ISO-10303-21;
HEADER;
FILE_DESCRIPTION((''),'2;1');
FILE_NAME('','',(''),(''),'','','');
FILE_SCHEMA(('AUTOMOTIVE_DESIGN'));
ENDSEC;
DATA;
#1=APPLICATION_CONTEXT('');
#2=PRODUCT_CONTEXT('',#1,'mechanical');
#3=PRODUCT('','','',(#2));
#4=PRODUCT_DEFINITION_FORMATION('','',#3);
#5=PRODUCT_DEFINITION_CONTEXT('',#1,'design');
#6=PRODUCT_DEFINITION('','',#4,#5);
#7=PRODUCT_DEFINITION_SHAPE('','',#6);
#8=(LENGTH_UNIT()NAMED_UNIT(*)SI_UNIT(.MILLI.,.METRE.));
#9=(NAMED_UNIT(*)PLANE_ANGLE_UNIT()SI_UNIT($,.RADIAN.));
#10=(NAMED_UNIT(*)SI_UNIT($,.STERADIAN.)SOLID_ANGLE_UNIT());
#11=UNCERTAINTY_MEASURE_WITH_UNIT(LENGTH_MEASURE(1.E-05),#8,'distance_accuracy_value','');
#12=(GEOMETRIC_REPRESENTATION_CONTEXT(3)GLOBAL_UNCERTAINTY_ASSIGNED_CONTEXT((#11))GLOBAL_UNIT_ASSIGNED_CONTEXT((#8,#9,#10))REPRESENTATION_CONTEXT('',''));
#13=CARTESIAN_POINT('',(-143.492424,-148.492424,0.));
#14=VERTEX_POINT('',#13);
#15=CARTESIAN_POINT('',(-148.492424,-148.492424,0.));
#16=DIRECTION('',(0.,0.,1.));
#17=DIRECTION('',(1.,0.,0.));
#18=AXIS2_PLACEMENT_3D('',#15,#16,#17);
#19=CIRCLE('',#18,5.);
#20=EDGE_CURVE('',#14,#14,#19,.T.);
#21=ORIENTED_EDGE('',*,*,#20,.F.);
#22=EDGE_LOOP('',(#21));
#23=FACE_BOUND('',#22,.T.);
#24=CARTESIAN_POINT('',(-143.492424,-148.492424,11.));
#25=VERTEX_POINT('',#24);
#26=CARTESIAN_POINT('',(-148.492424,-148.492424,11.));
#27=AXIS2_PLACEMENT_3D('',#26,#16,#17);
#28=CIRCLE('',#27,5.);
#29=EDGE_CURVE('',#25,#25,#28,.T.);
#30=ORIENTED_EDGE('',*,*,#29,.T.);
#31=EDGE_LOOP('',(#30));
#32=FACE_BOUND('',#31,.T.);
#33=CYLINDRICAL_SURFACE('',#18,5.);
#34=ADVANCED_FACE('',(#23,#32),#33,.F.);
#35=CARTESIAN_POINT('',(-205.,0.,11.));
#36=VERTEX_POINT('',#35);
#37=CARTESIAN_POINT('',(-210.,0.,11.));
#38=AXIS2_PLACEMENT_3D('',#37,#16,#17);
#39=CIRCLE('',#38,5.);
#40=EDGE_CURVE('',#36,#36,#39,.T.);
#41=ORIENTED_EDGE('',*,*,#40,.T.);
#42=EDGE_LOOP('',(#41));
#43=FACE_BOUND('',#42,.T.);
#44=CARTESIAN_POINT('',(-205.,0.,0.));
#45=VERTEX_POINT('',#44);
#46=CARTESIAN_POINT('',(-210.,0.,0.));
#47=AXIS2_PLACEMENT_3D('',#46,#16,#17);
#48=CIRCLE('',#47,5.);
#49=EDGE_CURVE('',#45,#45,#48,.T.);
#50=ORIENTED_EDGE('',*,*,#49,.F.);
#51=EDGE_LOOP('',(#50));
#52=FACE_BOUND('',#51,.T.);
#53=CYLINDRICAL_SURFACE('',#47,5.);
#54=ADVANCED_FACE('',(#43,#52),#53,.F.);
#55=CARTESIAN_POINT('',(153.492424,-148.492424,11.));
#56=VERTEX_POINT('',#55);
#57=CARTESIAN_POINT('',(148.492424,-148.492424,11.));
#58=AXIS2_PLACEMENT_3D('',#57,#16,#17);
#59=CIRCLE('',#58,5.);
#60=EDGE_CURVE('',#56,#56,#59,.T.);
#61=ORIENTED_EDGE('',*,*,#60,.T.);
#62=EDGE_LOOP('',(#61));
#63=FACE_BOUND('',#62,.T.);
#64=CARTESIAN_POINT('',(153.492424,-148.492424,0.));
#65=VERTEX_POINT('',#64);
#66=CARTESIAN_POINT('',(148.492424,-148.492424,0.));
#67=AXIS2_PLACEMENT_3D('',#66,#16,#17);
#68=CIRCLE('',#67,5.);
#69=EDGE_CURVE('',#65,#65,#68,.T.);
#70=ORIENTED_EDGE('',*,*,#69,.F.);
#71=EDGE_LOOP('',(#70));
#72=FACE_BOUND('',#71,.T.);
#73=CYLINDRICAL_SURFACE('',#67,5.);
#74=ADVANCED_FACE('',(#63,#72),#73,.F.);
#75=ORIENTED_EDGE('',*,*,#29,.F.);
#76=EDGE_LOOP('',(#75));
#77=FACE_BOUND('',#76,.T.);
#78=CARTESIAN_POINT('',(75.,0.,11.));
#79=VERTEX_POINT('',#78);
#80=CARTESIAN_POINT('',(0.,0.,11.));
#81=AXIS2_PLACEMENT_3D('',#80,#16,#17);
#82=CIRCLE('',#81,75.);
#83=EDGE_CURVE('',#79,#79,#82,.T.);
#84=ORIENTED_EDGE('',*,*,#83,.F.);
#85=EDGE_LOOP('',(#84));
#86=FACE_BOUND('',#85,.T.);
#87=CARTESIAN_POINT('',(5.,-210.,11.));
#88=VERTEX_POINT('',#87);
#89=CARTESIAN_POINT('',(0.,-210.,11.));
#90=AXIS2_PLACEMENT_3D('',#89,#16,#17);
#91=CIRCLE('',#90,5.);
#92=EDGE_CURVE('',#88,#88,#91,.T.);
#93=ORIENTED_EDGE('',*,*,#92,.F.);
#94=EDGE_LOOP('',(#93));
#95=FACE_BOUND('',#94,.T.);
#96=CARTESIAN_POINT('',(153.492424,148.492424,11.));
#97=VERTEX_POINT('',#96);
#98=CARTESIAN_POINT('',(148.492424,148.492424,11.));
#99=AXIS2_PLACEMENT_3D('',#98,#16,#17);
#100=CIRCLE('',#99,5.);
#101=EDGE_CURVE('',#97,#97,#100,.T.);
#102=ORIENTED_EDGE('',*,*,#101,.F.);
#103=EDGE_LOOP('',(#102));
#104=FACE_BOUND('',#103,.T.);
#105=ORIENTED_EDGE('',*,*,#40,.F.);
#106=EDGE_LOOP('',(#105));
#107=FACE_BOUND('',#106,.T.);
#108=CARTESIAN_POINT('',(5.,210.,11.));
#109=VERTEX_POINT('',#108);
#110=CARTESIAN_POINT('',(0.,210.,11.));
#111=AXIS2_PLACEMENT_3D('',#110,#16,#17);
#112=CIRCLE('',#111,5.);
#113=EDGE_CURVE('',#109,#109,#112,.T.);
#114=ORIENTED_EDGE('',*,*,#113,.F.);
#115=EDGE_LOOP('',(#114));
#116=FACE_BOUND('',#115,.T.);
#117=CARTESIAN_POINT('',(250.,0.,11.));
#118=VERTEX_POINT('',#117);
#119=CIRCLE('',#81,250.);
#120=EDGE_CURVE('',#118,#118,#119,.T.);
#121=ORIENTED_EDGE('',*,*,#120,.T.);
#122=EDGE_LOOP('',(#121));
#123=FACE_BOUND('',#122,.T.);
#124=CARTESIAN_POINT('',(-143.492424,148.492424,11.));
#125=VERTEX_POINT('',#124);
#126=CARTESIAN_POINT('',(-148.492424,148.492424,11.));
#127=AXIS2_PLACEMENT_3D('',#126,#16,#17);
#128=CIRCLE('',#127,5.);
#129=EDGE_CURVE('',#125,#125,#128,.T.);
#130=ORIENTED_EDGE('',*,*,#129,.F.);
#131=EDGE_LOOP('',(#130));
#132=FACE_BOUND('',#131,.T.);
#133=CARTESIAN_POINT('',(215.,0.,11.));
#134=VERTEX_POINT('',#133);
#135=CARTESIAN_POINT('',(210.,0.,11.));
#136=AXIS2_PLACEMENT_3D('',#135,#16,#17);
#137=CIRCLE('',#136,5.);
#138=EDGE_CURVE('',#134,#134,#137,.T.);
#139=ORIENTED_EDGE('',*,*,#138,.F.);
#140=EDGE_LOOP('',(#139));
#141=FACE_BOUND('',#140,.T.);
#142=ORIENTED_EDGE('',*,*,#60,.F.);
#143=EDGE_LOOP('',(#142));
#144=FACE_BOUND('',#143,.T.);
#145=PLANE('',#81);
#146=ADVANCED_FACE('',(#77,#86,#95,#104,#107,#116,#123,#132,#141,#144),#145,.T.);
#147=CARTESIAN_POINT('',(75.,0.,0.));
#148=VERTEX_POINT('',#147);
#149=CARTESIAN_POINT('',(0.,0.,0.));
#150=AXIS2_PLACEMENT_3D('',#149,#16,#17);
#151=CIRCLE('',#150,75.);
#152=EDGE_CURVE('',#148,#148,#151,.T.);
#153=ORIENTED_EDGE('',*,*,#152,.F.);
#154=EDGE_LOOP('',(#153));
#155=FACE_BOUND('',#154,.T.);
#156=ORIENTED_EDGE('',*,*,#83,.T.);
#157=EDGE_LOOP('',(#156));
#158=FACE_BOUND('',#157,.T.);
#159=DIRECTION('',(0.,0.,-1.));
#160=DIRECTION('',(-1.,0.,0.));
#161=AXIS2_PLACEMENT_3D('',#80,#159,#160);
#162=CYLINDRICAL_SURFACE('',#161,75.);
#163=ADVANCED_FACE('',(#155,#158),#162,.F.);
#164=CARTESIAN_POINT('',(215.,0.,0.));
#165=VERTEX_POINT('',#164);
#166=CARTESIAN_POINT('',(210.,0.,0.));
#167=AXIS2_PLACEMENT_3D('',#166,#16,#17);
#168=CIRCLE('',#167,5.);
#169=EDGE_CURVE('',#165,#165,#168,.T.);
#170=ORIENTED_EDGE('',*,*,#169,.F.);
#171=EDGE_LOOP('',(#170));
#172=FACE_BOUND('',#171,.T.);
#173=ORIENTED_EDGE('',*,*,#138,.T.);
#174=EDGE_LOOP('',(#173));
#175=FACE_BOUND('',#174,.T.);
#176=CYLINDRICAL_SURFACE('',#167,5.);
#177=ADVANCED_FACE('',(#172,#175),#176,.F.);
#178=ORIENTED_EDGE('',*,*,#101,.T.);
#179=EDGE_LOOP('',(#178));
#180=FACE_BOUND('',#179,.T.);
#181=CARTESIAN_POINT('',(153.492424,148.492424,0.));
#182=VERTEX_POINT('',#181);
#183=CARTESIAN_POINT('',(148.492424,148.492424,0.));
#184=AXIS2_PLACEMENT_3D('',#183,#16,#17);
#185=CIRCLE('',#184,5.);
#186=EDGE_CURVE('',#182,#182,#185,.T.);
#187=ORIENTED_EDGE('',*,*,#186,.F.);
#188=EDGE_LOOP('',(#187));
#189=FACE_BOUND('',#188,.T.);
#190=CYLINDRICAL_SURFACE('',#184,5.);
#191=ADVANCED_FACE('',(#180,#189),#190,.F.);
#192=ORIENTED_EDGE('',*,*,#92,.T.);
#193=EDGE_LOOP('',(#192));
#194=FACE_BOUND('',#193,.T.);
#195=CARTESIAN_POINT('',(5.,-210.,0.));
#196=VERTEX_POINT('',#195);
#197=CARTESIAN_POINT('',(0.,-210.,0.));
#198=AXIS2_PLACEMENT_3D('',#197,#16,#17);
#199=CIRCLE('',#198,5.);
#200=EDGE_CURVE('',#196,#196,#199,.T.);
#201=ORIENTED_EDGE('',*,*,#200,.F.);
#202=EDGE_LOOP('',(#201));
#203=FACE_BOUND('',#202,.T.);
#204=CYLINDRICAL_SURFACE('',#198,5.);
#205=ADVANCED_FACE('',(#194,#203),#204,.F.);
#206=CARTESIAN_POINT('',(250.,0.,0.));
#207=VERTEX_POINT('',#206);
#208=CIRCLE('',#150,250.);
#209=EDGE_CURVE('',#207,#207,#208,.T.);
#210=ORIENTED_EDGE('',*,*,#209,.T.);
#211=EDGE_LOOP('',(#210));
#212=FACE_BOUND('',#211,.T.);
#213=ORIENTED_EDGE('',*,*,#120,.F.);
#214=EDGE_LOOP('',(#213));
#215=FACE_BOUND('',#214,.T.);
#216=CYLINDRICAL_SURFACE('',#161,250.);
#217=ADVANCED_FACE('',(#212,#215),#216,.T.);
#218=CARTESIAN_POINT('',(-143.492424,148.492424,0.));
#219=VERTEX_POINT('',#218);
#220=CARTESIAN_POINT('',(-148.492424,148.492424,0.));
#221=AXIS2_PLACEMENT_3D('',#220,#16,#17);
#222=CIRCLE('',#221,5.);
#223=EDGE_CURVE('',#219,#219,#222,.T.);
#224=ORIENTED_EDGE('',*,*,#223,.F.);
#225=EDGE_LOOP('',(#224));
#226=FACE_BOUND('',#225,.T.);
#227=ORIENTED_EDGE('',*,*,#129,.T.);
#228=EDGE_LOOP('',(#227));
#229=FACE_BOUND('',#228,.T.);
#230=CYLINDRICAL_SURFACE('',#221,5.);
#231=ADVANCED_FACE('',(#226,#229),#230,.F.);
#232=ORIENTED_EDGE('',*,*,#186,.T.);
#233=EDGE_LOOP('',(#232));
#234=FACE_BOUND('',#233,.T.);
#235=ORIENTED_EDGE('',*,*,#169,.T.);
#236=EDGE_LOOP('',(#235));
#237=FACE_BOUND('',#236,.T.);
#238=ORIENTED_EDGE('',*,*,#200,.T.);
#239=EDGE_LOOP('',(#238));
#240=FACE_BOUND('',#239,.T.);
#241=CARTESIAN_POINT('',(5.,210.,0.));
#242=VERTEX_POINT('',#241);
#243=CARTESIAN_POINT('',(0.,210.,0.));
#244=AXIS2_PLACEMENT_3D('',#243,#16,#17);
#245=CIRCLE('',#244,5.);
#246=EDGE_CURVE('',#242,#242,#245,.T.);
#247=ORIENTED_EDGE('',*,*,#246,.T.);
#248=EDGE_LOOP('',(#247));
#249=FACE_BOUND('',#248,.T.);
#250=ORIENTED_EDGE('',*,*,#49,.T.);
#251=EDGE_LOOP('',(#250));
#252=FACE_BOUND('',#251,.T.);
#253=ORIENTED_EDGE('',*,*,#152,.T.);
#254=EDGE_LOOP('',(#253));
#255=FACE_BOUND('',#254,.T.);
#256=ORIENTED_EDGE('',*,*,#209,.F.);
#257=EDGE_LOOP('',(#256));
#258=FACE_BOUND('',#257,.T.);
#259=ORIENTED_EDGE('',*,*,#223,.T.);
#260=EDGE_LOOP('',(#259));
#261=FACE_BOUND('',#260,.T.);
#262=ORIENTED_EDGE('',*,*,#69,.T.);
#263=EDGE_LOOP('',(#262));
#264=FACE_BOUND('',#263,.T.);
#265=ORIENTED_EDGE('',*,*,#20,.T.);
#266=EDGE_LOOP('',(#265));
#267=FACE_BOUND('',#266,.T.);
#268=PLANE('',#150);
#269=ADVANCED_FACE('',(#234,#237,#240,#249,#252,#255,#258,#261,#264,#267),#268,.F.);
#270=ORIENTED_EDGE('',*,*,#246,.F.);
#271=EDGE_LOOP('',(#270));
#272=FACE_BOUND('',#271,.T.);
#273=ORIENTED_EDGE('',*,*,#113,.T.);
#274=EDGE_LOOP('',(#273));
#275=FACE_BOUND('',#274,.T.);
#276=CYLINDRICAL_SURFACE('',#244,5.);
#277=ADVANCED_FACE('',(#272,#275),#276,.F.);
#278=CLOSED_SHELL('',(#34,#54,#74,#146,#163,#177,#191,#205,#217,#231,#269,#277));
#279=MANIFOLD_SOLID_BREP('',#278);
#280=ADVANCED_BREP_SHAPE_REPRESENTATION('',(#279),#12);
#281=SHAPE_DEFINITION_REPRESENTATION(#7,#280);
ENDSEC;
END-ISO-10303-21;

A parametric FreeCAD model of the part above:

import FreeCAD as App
import Part
import Sketcher
from FreeCAD import Vector
Q = App.Units.Quantity

doc = App.newDocument("Part")
body = doc.addObject("PartDesign::Body", "Body")

sketch1 = body.newObject("Sketcher::SketchObject", "Sketch")
sketch1.AttachmentSupport = (doc.getObject("XY_Plane"), [""])
sketch1.MapMode = "FlatFace"
sketch1.addGeometry([
    Part.Circle(Vector(0, 0, 0), Vector(0, 0, 1), 250),
    Part.Circle(Vector(0, 0, 0), Vector(0, 0, 1), 75),
], False)
sketch1.addConstraint([
    Sketcher.Constraint("Coincident", 0, 3, -1, 1),
    Sketcher.Constraint("Coincident", 1, 3, -1, 1),
    Sketcher.Constraint("Diameter", 0, Q("500 mm")),
    Sketcher.Constraint("Diameter", 1, Q("150 mm")),
])
pad1 = body.newObject("PartDesign::Pad", "Pad")
pad1.Profile = sketch1
pad1.Length = 11

sketch2 = body.newObject("Sketcher::SketchObject", "Sketch001")
sketch2.AttachmentSupport = (doc.getObject("XY_Plane"), [""])
sketch2.MapMode = "FlatFace"
sketch2.AttachmentOffset = App.Placement(Vector(0, 0, 11), App.Rotation())
sketch2.addGeometry([
    Part.Circle(Vector(0, 210, 0), Vector(0, 0, 1), 5),
    Part.Circle(Vector(148, 148, 0), Vector(0, 0, 1), 5),
    Part.Circle(Vector(210, 0, 0), Vector(0, 0, 1), 5),
    Part.Circle(Vector(148, -148, 0), Vector(0, 0, 1), 5),
    Part.Circle(Vector(0, -210, 0), Vector(0, 0, 1), 5),
    Part.Circle(Vector(-148, -148, 0), Vector(0, 0, 1), 5),
    Part.Circle(Vector(-210, 0, 0), Vector(0, 0, 1), 5),
    Part.Circle(Vector(-148, 148, 0), Vector(0, 0, 1), 5),
], False)
sketch2.addConstraint([
    Sketcher.Constraint("Equal", 0, 1),
    Sketcher.Constraint("Equal", 1, 2),
    Sketcher.Constraint("Equal", 2, 3),
    Sketcher.Constraint("Equal", 3, 4),
    Sketcher.Constraint("Equal", 4, 5),
    Sketcher.Constraint("Equal", 5, 6),
    Sketcher.Constraint("Equal", 6, 7),
    Sketcher.Constraint("Symmetric", 0, 3, 4, 3, -1, 1),
    Sketcher.Constraint("Symmetric", 1, 3, 5, 3, -1, 1),
    Sketcher.Constraint("Symmetric", 2, 3, 6, 3, -1, 1),
    Sketcher.Constraint("Symmetric", 3, 3, 7, 3, -1, 1),
    Sketcher.Constraint("Symmetric", 3, 3, 5, 3, -2),
    Sketcher.Constraint("PointOnObject", 0, 3, -2),
    Sketcher.Constraint("PointOnObject", 2, 3, -1),
    Sketcher.Constraint("Diameter", 0, Q("10 mm")),
    Sketcher.Constraint("DistanceY", -1, 1, 0, 3, Q("210 mm")),
    Sketcher.Constraint("DistanceX", -1, 1, 2, 3, Q("210 mm")),
    Sketcher.Constraint("DistanceY", 3, 3, 1, 3, Q("296.984848 mm")),
    Sketcher.Constraint("DistanceX", 5, 3, 3, 3, Q("296.984848 mm")),
])
pocket1 = body.newObject("PartDesign::Pocket", "Pocket")
pocket1.Profile = sketch2
pocket1.Type = "ThroughAll"

doc.recompute()
